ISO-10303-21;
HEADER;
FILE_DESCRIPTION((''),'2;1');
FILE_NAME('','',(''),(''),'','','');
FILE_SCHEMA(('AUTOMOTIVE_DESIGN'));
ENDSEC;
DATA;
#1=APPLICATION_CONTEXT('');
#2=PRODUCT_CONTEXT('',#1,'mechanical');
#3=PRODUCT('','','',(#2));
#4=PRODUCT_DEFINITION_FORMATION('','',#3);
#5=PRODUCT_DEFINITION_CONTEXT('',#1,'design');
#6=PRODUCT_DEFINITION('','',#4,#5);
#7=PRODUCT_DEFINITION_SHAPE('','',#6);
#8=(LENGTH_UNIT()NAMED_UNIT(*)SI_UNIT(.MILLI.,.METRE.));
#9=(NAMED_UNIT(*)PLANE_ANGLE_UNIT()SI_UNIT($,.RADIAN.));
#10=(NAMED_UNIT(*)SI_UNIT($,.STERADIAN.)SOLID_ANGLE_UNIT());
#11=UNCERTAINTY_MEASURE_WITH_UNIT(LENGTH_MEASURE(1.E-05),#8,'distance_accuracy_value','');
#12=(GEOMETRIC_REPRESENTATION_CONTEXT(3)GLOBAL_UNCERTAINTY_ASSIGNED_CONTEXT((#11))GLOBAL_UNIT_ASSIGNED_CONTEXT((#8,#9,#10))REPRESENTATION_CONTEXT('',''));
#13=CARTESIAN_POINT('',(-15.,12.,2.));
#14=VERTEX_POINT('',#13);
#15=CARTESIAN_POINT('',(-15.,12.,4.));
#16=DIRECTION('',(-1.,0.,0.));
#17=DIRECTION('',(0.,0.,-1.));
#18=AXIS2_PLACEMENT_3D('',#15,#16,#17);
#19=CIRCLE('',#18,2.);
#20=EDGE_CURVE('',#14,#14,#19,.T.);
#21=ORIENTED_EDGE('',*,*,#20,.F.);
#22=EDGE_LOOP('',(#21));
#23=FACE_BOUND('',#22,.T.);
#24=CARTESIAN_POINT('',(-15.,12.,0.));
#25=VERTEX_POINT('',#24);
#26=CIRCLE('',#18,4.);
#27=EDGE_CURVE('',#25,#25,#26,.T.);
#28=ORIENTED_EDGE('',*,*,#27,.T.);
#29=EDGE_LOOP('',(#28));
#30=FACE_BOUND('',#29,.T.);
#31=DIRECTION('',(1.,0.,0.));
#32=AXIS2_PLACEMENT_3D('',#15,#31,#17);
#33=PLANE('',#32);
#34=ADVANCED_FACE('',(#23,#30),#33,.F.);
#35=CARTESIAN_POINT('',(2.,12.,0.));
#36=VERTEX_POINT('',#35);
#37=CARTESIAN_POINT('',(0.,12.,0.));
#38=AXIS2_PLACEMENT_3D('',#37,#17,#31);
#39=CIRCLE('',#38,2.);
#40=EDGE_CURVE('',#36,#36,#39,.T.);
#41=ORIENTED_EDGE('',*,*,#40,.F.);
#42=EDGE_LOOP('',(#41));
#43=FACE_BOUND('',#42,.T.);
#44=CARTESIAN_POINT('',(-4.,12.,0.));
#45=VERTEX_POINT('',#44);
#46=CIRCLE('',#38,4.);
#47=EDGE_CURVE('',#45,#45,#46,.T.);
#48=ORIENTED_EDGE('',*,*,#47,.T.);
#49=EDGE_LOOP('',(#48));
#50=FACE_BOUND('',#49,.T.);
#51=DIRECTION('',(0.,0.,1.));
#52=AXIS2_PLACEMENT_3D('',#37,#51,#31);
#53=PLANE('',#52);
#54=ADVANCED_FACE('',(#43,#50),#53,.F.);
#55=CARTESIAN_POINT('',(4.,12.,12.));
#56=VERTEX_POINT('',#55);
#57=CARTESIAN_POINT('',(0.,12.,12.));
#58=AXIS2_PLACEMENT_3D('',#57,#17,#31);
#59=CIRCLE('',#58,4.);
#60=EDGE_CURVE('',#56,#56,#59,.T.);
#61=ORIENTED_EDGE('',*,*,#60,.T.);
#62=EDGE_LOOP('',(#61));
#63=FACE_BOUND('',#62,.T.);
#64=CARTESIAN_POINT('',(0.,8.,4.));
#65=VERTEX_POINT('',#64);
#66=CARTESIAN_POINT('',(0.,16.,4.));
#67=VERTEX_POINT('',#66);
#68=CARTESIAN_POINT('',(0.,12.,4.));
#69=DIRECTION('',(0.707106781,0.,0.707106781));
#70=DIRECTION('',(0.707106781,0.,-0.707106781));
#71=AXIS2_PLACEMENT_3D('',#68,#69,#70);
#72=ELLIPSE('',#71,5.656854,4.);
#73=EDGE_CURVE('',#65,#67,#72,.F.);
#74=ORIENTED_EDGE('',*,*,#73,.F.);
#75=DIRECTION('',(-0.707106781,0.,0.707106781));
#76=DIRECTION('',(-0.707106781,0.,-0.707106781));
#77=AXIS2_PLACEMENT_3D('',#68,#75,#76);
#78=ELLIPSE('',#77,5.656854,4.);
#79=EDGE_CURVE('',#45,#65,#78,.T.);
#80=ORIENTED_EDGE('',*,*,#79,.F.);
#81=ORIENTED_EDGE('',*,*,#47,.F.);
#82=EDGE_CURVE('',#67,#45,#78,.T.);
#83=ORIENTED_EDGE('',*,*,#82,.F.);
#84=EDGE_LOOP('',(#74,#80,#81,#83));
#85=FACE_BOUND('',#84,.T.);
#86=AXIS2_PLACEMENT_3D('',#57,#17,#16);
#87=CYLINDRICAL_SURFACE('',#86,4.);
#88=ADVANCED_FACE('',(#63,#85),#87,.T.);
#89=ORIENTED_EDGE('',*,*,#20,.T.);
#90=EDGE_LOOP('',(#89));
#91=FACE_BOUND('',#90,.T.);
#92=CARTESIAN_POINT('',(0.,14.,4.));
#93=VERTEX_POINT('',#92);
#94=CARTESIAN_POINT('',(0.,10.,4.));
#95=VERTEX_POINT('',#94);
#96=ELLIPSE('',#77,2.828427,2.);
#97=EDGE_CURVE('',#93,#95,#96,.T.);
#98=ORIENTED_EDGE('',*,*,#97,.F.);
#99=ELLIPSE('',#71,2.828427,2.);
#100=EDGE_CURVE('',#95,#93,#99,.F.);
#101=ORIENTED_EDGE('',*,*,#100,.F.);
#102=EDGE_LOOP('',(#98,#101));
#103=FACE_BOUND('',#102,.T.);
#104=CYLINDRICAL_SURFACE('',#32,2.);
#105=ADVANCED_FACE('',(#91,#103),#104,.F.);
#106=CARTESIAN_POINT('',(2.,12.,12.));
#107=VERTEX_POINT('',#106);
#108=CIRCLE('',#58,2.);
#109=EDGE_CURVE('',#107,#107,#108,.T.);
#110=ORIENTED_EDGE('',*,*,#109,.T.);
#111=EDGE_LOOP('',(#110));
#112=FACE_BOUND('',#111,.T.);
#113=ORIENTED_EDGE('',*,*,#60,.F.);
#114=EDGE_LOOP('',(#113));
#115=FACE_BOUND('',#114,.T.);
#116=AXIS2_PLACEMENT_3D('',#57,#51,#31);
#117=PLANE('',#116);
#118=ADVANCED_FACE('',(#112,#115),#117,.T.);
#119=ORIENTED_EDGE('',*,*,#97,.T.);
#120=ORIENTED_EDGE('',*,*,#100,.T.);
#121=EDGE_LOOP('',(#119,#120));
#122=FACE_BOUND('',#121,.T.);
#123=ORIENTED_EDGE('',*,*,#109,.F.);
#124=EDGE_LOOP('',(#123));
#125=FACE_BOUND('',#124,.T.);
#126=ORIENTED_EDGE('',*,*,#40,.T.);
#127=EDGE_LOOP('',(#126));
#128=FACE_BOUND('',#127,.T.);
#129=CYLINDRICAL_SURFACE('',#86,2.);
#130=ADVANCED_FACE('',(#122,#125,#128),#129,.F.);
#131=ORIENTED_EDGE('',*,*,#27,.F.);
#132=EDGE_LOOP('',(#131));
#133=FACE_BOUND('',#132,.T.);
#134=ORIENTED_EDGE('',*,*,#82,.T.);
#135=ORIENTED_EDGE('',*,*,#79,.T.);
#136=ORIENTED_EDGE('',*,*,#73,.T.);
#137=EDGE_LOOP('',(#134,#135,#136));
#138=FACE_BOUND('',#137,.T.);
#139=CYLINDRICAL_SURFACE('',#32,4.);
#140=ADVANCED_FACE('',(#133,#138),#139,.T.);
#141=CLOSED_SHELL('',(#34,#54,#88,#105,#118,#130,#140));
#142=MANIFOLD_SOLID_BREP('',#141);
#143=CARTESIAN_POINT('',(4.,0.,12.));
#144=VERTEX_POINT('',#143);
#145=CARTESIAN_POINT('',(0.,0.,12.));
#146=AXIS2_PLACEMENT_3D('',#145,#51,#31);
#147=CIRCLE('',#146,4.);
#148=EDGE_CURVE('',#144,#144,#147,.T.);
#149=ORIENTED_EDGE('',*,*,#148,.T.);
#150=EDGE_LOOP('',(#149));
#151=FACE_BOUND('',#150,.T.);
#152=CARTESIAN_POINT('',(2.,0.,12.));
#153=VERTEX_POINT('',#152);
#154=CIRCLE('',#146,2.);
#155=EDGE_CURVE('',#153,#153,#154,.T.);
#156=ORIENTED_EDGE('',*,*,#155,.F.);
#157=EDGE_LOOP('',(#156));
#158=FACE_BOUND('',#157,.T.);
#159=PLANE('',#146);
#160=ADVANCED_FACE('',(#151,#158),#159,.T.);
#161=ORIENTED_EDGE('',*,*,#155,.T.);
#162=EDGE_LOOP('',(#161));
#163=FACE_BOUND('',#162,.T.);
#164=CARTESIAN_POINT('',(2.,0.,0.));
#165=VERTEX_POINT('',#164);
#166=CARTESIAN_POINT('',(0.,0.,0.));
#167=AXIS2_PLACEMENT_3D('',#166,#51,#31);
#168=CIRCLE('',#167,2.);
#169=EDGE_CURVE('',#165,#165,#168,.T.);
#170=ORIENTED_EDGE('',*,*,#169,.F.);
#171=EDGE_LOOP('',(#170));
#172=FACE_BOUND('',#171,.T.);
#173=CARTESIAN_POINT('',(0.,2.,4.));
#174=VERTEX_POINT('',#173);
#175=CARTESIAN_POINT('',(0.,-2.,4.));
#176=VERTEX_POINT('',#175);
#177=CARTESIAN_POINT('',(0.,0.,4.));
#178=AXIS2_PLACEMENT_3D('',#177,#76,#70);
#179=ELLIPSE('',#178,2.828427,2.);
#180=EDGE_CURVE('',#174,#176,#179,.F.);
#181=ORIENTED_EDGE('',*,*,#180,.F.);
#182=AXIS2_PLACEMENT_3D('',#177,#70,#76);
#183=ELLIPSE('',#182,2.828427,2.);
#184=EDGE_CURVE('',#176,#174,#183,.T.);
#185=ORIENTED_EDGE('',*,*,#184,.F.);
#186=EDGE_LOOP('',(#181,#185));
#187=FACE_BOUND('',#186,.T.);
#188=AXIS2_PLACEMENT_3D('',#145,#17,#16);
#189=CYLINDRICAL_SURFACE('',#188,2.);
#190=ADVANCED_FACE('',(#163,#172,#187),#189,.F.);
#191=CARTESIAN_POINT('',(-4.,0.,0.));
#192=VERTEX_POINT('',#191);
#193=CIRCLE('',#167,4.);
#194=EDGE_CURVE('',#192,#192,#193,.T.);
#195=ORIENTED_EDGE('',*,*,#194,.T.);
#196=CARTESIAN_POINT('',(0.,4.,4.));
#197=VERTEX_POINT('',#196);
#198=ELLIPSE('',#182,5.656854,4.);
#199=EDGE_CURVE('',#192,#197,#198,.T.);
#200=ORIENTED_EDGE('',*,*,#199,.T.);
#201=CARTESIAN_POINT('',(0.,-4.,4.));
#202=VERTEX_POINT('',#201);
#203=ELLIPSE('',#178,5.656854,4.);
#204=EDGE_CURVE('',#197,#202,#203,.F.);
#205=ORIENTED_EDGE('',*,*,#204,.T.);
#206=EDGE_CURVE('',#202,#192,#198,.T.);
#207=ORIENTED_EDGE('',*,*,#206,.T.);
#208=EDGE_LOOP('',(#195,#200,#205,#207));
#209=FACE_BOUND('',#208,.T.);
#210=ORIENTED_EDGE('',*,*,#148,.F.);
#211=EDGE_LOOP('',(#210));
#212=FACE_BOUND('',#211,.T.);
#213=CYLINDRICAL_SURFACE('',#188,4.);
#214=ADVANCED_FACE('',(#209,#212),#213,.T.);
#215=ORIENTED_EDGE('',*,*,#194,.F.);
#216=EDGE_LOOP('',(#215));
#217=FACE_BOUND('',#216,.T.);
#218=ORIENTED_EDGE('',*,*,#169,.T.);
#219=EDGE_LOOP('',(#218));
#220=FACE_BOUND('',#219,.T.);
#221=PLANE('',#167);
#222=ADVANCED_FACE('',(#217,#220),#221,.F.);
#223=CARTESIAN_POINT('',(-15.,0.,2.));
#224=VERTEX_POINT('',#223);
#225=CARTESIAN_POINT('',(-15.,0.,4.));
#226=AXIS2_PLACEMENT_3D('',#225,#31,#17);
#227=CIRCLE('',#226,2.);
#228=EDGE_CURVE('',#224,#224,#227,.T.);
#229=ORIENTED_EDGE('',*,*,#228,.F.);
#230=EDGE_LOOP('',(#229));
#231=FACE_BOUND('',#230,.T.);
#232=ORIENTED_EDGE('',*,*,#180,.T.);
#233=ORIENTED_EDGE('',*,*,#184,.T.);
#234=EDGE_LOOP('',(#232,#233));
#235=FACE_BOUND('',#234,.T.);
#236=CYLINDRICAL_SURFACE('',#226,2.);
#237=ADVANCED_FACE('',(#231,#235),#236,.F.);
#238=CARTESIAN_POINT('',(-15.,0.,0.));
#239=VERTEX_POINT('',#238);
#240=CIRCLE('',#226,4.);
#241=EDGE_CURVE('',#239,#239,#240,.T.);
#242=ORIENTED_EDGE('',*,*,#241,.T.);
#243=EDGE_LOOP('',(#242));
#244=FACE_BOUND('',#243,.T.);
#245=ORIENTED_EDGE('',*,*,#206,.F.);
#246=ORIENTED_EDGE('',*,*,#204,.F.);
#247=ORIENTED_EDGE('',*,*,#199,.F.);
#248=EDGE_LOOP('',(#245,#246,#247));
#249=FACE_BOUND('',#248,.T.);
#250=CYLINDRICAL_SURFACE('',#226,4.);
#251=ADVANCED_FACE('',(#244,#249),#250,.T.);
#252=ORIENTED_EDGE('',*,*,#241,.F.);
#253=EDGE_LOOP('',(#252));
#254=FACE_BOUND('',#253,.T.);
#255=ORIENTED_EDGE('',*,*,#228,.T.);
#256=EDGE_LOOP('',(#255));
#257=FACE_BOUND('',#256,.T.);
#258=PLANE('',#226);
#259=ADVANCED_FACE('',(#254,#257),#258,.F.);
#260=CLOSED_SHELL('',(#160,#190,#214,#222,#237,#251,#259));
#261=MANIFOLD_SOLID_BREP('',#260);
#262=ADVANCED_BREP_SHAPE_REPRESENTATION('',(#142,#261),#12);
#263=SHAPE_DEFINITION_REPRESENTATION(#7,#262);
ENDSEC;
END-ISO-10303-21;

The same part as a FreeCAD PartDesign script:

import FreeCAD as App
import Part
import Sketcher

doc = App.newDocument("Part")
body = doc.addObject("PartDesign::Body", "Body")

sketch1 = body.newObject("Sketcher::SketchObject", "Sketch")
sketch1.AttachmentSupport = (doc.getObject("XY_Plane"), [""])
sketch1.MapMode = "FlatFace"
sketch1.addGeometry([
    Part.Circle(App.Vector(0, 0, 0), App.Vector(0, 0, 1), 4),
    Part.Circle(App.Vector(0, 0, 0), App.Vector(0, 0, 1), 2),
], False)
sketch1.addConstraint([
    Sketcher.Constraint("Coincident", 0, 3, -1, 1),
    Sketcher.Constraint("Coincident", 1, 3, -1, 1),
    Sketcher.Constraint("Diameter", 0, 8.0),
    Sketcher.Constraint("Diameter", 1, 4.0),
])
pad1 = body.newObject("PartDesign::Pad", "Pad")
pad1.Profile = sketch1
pad1.Length = 12

sketch2 = body.newObject("Sketcher::SketchObject", "Sketch001")
sketch2.AttachmentSupport = (doc.getObject("YZ_Plane"), [""])
sketch2.MapMode = "FlatFace"
sketch2.addGeometry([
    Part.Circle(App.Vector(0, 4, 0), App.Vector(0, 0, 1), 4),
    Part.Circle(App.Vector(0, 4, 0), App.Vector(0, 0, 1), 2),
], False)
sketch2.addConstraint([
    Sketcher.Constraint("Coincident", 1, 3, 0, 3),
    Sketcher.Constraint("PointOnObject", 0, 3, -2),
    Sketcher.Constraint("Diameter", 0, 8.0),
    Sketcher.Constraint("Diameter", 1, 4.0),
    Sketcher.Constraint("DistanceY", -1, 1, 0, 3, 4.0),
])
pad2 = body.newObject("PartDesign::Pad", "Pad001")
pad2.Profile = sketch2
pad2.Length = 15
pad2.Reversed = True

sketch3 = body.newObject("Sketcher::SketchObject", "Sketch002")
sketch3.AttachmentSupport = (doc.getObject("XY_Plane"), [""])
sketch3.MapMode = "FlatFace"
sketch3.addGeometry(Part.Circle(App.Vector(0, 0, 0), App.Vector(0, 0, 1), 2), False)
sketch3.addConstraint([
    Sketcher.Constraint("Coincident", 0, 3, -1, 1),
    Sketcher.Constraint("Diameter", 0, 4.0),
])
pocket1 = body.newObject("PartDesign::Pocket", "Pocket")
pocket1.Profile = sketch3
pocket1.Type = "ThroughAll"
pocket1.Reversed = True

sketch4 = body.newObject("Sketcher::SketchObject", "Sketch003")
sketch4.AttachmentSupport = (doc.getObject("YZ_Plane"), [""])
sketch4.MapMode = "FlatFace"
sketch4.AttachmentOffset = App.Placement(App.Vector(0, 0, -15), App.Rotation())
sketch4.addGeometry(Part.Circle(App.Vector(0, 4, 0), App.Vector(0, 0, 1), 2), False)
sketch4.addConstraint([
    Sketcher.Constraint("PointOnObject", 0, 3, -2),
    Sketcher.Constraint("Diameter", 0, 4.0),
    Sketcher.Constraint("DistanceY", -1, 1, 0, 3, 4.0),
])
pocket2 = body.newObject("PartDesign::Pocket", "Pocket001")
pocket2.Profile = sketch4
pocket2.Length = 15
pocket2.Reversed = True
body2 = doc.addObject("PartDesign::Body", "Body001")
doc.recompute()

mirroring = doc.addObject("Part::Mirroring", "Mirroring")
mirroring.Source = body
mirroring.Base = App.Vector(0, 6, 0)
mirroring.Normal = App.Vector(0, 1, 0)
body2.BaseFeature = mirroring
doc.recompute()
mirroring.Visibility = False

doc.recompute()
